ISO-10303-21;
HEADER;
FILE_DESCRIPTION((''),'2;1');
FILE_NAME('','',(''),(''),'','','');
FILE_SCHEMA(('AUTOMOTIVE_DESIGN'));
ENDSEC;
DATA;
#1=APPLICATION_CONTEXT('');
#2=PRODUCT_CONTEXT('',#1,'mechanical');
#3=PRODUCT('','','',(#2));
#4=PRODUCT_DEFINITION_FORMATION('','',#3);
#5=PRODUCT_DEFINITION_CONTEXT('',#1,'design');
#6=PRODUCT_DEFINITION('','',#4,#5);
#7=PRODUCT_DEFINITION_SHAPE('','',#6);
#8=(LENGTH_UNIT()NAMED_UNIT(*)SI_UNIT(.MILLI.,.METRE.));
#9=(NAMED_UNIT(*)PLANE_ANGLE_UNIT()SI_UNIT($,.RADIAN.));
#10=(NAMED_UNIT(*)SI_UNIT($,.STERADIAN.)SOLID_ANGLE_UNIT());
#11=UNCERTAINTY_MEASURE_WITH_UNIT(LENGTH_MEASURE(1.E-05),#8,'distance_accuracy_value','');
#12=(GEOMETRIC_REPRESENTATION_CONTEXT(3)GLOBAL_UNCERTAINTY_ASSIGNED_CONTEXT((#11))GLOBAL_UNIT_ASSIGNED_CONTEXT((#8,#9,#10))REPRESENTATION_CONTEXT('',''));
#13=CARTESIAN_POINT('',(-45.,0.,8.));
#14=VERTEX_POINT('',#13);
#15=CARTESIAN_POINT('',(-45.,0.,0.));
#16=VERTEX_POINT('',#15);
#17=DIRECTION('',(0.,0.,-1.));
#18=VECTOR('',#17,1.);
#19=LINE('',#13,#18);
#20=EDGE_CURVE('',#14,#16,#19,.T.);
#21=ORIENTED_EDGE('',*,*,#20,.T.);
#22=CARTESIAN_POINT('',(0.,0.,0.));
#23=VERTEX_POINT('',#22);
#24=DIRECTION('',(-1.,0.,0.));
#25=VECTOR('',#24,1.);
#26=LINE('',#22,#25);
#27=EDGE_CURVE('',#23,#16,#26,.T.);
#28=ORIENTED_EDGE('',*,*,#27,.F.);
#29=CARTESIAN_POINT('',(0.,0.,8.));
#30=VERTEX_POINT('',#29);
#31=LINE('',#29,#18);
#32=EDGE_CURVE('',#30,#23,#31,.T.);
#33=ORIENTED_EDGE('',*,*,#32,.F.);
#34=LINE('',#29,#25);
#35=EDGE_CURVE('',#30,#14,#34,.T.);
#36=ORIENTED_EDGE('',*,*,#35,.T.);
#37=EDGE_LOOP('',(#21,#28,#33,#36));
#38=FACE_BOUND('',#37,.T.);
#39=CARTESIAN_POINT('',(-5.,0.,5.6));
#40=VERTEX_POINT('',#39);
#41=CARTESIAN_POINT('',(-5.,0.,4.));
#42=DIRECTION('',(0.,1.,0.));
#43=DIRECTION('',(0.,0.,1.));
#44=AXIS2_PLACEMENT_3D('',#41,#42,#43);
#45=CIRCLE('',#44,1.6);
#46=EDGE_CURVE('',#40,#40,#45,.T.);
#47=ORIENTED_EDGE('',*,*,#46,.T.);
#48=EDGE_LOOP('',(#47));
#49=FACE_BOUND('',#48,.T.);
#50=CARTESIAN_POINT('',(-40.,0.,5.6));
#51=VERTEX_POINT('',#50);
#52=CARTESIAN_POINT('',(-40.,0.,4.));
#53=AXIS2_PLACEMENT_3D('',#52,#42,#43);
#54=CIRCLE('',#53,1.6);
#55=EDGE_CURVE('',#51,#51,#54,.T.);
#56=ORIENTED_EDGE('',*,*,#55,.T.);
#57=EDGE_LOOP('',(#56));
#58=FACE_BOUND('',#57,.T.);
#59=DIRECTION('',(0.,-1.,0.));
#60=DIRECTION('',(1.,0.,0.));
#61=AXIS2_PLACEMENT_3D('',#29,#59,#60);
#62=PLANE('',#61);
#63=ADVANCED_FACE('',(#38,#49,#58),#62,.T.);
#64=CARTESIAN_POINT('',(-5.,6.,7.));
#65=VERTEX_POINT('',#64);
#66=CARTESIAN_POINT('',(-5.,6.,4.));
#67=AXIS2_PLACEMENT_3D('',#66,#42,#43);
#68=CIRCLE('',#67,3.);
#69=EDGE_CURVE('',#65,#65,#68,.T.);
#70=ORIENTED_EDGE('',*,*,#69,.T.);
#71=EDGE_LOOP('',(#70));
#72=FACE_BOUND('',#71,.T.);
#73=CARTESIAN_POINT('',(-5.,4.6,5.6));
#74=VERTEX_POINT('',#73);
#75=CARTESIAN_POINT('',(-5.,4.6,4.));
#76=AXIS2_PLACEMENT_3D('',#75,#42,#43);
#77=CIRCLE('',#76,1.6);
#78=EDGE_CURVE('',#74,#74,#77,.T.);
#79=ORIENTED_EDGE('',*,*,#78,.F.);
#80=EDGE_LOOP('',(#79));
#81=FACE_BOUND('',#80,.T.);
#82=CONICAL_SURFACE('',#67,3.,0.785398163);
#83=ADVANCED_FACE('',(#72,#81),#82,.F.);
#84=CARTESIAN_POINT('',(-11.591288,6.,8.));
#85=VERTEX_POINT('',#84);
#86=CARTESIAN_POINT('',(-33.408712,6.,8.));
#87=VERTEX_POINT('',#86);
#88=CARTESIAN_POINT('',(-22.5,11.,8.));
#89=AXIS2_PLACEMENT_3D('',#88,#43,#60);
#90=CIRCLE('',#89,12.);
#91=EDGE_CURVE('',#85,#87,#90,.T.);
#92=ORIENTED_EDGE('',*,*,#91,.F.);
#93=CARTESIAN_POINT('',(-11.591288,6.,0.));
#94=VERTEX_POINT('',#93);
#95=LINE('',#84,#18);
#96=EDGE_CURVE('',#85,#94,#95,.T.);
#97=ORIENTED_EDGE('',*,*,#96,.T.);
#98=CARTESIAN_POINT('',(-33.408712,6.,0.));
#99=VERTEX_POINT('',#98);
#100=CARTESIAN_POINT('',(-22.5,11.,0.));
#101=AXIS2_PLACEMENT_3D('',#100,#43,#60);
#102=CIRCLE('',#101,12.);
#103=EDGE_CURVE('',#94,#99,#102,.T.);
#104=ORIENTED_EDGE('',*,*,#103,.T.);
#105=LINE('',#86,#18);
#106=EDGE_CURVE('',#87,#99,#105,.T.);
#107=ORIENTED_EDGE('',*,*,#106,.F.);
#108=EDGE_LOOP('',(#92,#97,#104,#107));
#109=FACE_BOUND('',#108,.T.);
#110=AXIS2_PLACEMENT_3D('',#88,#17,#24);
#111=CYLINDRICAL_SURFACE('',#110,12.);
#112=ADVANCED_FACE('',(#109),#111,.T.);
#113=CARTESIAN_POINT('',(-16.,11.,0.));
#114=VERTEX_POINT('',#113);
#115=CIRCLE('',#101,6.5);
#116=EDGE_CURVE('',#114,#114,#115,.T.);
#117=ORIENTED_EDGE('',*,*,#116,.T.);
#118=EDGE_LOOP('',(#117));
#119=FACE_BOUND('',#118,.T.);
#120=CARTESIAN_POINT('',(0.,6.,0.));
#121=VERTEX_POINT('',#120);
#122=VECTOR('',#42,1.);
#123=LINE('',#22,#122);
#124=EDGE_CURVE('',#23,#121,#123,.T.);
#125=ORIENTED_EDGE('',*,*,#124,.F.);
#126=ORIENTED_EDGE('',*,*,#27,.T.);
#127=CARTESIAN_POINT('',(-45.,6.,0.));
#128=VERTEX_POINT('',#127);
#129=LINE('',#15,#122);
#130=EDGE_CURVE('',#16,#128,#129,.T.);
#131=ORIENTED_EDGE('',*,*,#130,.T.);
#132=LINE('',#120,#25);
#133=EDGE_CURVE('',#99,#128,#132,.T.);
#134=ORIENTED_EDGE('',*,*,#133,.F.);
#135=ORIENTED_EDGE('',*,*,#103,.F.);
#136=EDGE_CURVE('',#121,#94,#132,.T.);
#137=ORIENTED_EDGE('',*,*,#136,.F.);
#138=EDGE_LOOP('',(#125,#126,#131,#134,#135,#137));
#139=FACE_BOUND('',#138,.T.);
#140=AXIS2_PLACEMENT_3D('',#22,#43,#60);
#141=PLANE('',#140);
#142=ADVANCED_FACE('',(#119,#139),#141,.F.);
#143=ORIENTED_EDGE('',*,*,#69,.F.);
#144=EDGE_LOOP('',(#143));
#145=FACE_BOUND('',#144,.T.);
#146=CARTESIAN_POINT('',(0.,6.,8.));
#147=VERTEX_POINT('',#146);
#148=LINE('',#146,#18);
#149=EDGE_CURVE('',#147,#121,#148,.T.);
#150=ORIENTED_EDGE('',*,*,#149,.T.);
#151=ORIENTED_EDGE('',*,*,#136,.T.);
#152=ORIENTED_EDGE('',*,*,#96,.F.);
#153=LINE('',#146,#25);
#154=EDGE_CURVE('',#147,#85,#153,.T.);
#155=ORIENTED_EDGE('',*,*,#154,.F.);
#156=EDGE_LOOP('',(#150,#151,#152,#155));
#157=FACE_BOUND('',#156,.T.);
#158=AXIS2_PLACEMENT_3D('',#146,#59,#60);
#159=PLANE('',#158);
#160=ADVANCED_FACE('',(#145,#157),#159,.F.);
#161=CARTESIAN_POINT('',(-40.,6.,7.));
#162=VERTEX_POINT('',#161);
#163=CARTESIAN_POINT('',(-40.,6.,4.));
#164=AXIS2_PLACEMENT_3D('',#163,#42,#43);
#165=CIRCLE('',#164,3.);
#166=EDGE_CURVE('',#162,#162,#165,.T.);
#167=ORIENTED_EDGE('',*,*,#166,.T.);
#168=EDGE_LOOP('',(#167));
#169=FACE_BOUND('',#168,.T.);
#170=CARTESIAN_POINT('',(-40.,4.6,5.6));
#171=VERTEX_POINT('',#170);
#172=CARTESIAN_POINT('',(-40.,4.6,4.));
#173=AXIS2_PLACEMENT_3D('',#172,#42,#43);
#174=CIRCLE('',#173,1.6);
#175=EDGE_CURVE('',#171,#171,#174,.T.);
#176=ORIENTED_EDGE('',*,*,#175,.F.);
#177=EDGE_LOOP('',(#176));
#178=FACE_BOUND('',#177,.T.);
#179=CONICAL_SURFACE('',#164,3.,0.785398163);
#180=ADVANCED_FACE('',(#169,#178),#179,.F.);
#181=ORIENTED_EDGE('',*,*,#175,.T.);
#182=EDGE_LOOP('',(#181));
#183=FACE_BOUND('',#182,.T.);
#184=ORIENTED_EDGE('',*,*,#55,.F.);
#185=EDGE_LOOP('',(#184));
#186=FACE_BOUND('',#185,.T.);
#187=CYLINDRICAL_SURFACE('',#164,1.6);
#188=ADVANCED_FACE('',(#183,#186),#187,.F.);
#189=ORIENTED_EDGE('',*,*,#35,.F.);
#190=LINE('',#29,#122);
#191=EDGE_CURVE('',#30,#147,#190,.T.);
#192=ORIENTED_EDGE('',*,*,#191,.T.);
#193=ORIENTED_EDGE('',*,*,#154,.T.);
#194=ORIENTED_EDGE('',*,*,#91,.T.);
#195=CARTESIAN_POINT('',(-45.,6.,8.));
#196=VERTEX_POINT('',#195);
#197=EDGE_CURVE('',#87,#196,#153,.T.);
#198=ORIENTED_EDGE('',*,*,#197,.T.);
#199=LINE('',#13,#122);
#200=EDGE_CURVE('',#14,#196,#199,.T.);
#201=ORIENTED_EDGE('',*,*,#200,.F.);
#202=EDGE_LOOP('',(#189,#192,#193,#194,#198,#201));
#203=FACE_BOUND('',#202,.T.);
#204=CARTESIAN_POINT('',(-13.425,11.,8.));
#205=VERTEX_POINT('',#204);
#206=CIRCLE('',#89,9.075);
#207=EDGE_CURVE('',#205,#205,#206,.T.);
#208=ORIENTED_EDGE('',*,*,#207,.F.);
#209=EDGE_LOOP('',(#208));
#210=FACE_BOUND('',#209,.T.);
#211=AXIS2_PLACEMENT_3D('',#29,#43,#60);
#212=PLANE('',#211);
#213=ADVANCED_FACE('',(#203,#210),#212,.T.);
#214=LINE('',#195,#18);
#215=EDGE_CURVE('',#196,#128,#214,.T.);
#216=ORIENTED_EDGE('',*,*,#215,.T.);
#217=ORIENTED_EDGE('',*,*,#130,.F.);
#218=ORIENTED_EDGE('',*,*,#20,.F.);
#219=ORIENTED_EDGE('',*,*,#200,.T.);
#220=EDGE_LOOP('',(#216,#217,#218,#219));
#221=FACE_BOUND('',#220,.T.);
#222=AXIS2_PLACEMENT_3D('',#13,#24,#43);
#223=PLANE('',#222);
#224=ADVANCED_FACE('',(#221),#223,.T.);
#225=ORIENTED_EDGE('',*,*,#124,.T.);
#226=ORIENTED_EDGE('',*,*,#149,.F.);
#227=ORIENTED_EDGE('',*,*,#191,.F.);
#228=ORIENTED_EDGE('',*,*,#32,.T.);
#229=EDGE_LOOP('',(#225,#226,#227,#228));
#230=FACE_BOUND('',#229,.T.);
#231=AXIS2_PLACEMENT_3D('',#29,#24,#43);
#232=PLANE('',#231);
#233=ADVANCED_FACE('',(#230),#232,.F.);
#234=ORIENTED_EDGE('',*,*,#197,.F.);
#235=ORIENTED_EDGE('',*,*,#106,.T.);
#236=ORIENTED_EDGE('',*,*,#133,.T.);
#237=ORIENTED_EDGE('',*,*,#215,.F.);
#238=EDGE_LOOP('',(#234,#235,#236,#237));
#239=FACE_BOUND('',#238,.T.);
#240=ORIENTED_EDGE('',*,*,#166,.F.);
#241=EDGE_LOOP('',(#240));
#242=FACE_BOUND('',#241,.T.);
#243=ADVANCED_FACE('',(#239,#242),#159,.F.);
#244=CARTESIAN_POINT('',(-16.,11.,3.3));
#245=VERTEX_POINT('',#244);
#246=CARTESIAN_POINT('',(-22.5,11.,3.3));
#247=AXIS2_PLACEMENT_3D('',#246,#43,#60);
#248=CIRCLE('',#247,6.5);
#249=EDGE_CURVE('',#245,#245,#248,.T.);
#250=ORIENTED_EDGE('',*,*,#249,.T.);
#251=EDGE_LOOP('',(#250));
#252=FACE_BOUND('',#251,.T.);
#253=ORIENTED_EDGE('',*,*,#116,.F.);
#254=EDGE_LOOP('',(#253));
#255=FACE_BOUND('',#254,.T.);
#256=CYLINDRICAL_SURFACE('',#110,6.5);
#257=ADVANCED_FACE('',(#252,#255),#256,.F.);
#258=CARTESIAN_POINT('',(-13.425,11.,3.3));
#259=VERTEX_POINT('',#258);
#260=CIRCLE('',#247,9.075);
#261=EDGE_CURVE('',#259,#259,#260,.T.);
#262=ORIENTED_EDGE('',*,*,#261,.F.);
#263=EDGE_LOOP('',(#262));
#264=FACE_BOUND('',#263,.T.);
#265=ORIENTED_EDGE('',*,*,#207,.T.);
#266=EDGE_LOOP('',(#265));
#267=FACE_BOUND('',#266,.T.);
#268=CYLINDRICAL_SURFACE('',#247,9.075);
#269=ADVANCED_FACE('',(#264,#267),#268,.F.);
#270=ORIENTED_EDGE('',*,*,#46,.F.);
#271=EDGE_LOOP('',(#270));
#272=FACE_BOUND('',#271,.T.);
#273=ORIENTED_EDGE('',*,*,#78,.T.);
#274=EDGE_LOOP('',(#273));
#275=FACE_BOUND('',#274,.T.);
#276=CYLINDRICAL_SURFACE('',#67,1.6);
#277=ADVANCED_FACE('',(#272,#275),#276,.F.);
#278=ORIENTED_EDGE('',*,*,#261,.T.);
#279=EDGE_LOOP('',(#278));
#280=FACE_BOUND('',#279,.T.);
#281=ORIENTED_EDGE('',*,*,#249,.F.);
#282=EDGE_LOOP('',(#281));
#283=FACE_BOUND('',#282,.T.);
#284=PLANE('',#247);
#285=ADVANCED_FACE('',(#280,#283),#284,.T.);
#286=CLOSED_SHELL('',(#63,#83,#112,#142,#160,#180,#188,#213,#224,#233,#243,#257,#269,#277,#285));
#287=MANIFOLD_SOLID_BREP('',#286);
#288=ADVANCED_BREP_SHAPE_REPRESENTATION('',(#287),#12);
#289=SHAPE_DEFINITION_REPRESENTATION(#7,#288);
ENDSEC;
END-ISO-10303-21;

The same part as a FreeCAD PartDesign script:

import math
import FreeCAD as App
import Part
import Sketcher

V = App.Vector
Q = App.Units.Quantity

doc = App.newDocument("Part")
body = doc.addObject("PartDesign::Body", "Body")

# Sketch on XY plane
sketch1 = body.newObject("Sketcher::SketchObject", "Sketch")
sketch1.AttachmentSupport = (doc.getObject("XY_Plane"), [""])
sketch1.MapMode = "FlatFace"
sketch1.addGeometry([
    Part.ArcOfCircle(Part.Circle(V(-22.5, 11, 0), V(0, 0, 1), 12), math.radians(-25), math.radians(-2)),  # 0
    Part.ArcOfCircle(Part.Circle(V(-22.5, 11, 0), V(0, 0, 1), 12), math.radians(-1.94), math.radians(0)),  # 1
    Part.ArcOfCircle(Part.Circle(V(-22.5, 11, 0), V(0, 0, 1), 12), math.radians(0), math.radians(180)),  # 2
    Part.ArcOfCircle(Part.Circle(V(-22.5, 11, 0), V(0, 0, 1), 12), math.radians(-180), math.radians(-178.06)),  # 3
    Part.ArcOfCircle(Part.Circle(V(-22.5, 11, 0), V(0, 0, 1), 12), math.radians(-178), math.radians(-155)),  # 4
    Part.LineSegment(V(-33.41, 6, 0), V(-45, 6, 0)),  # 5
    Part.LineSegment(V(-45, 6, 0), V(-45, 0, 0)),  # 6
    Part.LineSegment(V(-45, 0, 0), V(0, 0, 0)),  # 7
    Part.LineSegment(V(0, 0, 0), V(0, 6, 0)),  # 8
    Part.LineSegment(V(0, 6, 0), V(-11.59, 6, 0)),  # 9
    Part.ArcOfCircle(Part.Circle(V(-22.5, 11, 0), V(0, 0, 1), 6.5), math.radians(-130), math.radians(-50)),  # 10
    Part.ArcOfCircle(Part.Circle(V(-22.5, 11, 0), V(0, 0, 1), 6.5), math.radians(0), math.radians(230)),  # 11
    Part.ArcOfCircle(Part.Circle(V(-22.5, 11, 0), V(0, 0, 1), 6.5), math.radians(-50), math.radians(0)),  # 12
], False)
sketch1.addConstraint([
    Sketcher.Constraint("Tangent", 0, 2, 1, 1),
    Sketcher.Constraint("Tangent", 1, 2, 2, 1),
    Sketcher.Constraint("Tangent", 2, 2, 3, 1),
    Sketcher.Constraint("Tangent", 3, 2, 4, 1),
    Sketcher.Constraint("Coincident", 4, 2, 5, 1),
    Sketcher.Constraint("Coincident", 5, 2, 6, 1),
    Sketcher.Constraint("Coincident", 6, 2, 7, 1),
    Sketcher.Constraint("Coincident", 7, 2, 8, 1),
    Sketcher.Constraint("Coincident", 8, 2, 9, 1),
    Sketcher.Constraint("Coincident", 9, 2, 0, 1),
    Sketcher.Constraint("Tangent", 10, 1, 11, 2),
    Sketcher.Constraint("Tangent", 11, 1, 12, 2),
    Sketcher.Constraint("Tangent", 12, 1, 10, 2),
    Sketcher.Constraint("Horizontal", 5),
    Sketcher.Constraint("Vertical", 6),
    Sketcher.Constraint("Horizontal", 7),
    Sketcher.Constraint("Vertical", 8),
    Sketcher.Constraint("Horizontal", 9),
    Sketcher.Constraint("Coincident", 7, 2, -1, 1),
    Sketcher.Constraint("Coincident", 2, 3, 0, 3),
    Sketcher.Constraint("Coincident", 4, 3, 0, 3),
    Sketcher.Constraint("Coincident", 10, 3, 0, 3),
    Sketcher.Constraint("Horizontal", 12, 3, 1, 2),
    Sketcher.Constraint("Horizontal", 1, 2, 2, 2),
    Sketcher.Constraint("Horizontal", 0, 2, 3, 2),
    Sketcher.Constraint("Horizontal", 5, 2, 8, 2),
    Sketcher.Constraint("Horizontal", 9, 2, 10, 1),
    Sketcher.Constraint("Horizontal", 2, 2, 11, 1),
    Sketcher.Constraint("Horizontal", 10, 1, 12, 1),
    Sketcher.Constraint("Equal", 5, 9),
    Sketcher.Constraint("Radius", 0, Q("12 mm")),
    Sketcher.Constraint("Radius", 10, Q("6.5 mm")),
    Sketcher.Constraint("DistanceX", 7, 1, 7, 2, Q("45 mm")),
    Sketcher.Constraint("DistanceY", 6, 2, 6, 1, Q("6 mm")),
    Sketcher.Constraint("DistanceY", -1, 1, 0, 3, Q("11 mm")),
    Sketcher.Constraint("DistanceX", 0, 2, -1, 1, Q("10.506903 mm")),
])
pad1 = body.newObject("PartDesign::Pad", "Pad")
pad1.Profile = sketch1
pad1.Length = 8

# Sketch on XY plane
sketch2 = body.newObject("Sketcher::SketchObject", "Sketch001")
sketch2.AttachmentSupport = (doc.getObject("XY_Plane"), [""])
sketch2.MapMode = "FlatFace"
sketch2.AttachmentOffset = App.Placement(V(0, 0, 8), App.Rotation())
sketch2.addGeometry(Part.Circle(V(-22, 11, 0), V(0, 0, 1), 9), False)
sketch2.addConstraint([
    Sketcher.Constraint("Diameter", 0, Q("18.15 mm")),
    Sketcher.Constraint("DistanceY", -1, 1, 0, 3, Q("11 mm")),
    Sketcher.Constraint("DistanceX", 0, 3, -1, 1, Q("22.5 mm")),
])
pocket1 = body.newObject("PartDesign::Pocket", "Pocket")
pocket1.Profile = sketch2
pocket1.Length = 4.7

# Sketch on XZ plane
sketch3 = body.newObject("Sketcher::SketchObject", "Sketch002")
sketch3.AttachmentSupport = (doc.getObject("XZ_Plane"), [""])
sketch3.MapMode = "FlatFace"
sketch3.AttachmentOffset = App.Placement(V(0, 0, -6), App.Rotation())
sketch3.addGeometry([
    Part.Circle(V(-40, 4, 0), V(0, 0, 1), 1.6),
    Part.Circle(V(-5, 4, 0), V(0, 0, 1), 1.6),
], False)
sketch3.addConstraint([
    Sketcher.Constraint("Equal", 0, 1),
    Sketcher.Constraint("Horizontal", 0, 3, 1, 3),
    Sketcher.Constraint("Diameter", 0, Q("3.2 mm")),
    Sketcher.Constraint("DistanceX", 0, 3, -1, 1, Q("40 mm")),
    Sketcher.Constraint("DistanceY", -1, 1, 0, 3, Q("4 mm")),
    Sketcher.Constraint("DistanceX", 1, 3, -1, 1, Q("5 mm")),
])
doc.recompute()
hole = body.newObject("PartDesign::Hole", "Hole")
hole.Profile = sketch3
hole.ThreadType = "None"
hole.Diameter = 3.2
hole.DepthType = "ThroughAll"
hole.HoleCutType = "Countersink"
hole.HoleCutDiameter = 6
hole.HoleCutCountersinkAngle = 90
hole.Reversed = True

doc.recompute()
